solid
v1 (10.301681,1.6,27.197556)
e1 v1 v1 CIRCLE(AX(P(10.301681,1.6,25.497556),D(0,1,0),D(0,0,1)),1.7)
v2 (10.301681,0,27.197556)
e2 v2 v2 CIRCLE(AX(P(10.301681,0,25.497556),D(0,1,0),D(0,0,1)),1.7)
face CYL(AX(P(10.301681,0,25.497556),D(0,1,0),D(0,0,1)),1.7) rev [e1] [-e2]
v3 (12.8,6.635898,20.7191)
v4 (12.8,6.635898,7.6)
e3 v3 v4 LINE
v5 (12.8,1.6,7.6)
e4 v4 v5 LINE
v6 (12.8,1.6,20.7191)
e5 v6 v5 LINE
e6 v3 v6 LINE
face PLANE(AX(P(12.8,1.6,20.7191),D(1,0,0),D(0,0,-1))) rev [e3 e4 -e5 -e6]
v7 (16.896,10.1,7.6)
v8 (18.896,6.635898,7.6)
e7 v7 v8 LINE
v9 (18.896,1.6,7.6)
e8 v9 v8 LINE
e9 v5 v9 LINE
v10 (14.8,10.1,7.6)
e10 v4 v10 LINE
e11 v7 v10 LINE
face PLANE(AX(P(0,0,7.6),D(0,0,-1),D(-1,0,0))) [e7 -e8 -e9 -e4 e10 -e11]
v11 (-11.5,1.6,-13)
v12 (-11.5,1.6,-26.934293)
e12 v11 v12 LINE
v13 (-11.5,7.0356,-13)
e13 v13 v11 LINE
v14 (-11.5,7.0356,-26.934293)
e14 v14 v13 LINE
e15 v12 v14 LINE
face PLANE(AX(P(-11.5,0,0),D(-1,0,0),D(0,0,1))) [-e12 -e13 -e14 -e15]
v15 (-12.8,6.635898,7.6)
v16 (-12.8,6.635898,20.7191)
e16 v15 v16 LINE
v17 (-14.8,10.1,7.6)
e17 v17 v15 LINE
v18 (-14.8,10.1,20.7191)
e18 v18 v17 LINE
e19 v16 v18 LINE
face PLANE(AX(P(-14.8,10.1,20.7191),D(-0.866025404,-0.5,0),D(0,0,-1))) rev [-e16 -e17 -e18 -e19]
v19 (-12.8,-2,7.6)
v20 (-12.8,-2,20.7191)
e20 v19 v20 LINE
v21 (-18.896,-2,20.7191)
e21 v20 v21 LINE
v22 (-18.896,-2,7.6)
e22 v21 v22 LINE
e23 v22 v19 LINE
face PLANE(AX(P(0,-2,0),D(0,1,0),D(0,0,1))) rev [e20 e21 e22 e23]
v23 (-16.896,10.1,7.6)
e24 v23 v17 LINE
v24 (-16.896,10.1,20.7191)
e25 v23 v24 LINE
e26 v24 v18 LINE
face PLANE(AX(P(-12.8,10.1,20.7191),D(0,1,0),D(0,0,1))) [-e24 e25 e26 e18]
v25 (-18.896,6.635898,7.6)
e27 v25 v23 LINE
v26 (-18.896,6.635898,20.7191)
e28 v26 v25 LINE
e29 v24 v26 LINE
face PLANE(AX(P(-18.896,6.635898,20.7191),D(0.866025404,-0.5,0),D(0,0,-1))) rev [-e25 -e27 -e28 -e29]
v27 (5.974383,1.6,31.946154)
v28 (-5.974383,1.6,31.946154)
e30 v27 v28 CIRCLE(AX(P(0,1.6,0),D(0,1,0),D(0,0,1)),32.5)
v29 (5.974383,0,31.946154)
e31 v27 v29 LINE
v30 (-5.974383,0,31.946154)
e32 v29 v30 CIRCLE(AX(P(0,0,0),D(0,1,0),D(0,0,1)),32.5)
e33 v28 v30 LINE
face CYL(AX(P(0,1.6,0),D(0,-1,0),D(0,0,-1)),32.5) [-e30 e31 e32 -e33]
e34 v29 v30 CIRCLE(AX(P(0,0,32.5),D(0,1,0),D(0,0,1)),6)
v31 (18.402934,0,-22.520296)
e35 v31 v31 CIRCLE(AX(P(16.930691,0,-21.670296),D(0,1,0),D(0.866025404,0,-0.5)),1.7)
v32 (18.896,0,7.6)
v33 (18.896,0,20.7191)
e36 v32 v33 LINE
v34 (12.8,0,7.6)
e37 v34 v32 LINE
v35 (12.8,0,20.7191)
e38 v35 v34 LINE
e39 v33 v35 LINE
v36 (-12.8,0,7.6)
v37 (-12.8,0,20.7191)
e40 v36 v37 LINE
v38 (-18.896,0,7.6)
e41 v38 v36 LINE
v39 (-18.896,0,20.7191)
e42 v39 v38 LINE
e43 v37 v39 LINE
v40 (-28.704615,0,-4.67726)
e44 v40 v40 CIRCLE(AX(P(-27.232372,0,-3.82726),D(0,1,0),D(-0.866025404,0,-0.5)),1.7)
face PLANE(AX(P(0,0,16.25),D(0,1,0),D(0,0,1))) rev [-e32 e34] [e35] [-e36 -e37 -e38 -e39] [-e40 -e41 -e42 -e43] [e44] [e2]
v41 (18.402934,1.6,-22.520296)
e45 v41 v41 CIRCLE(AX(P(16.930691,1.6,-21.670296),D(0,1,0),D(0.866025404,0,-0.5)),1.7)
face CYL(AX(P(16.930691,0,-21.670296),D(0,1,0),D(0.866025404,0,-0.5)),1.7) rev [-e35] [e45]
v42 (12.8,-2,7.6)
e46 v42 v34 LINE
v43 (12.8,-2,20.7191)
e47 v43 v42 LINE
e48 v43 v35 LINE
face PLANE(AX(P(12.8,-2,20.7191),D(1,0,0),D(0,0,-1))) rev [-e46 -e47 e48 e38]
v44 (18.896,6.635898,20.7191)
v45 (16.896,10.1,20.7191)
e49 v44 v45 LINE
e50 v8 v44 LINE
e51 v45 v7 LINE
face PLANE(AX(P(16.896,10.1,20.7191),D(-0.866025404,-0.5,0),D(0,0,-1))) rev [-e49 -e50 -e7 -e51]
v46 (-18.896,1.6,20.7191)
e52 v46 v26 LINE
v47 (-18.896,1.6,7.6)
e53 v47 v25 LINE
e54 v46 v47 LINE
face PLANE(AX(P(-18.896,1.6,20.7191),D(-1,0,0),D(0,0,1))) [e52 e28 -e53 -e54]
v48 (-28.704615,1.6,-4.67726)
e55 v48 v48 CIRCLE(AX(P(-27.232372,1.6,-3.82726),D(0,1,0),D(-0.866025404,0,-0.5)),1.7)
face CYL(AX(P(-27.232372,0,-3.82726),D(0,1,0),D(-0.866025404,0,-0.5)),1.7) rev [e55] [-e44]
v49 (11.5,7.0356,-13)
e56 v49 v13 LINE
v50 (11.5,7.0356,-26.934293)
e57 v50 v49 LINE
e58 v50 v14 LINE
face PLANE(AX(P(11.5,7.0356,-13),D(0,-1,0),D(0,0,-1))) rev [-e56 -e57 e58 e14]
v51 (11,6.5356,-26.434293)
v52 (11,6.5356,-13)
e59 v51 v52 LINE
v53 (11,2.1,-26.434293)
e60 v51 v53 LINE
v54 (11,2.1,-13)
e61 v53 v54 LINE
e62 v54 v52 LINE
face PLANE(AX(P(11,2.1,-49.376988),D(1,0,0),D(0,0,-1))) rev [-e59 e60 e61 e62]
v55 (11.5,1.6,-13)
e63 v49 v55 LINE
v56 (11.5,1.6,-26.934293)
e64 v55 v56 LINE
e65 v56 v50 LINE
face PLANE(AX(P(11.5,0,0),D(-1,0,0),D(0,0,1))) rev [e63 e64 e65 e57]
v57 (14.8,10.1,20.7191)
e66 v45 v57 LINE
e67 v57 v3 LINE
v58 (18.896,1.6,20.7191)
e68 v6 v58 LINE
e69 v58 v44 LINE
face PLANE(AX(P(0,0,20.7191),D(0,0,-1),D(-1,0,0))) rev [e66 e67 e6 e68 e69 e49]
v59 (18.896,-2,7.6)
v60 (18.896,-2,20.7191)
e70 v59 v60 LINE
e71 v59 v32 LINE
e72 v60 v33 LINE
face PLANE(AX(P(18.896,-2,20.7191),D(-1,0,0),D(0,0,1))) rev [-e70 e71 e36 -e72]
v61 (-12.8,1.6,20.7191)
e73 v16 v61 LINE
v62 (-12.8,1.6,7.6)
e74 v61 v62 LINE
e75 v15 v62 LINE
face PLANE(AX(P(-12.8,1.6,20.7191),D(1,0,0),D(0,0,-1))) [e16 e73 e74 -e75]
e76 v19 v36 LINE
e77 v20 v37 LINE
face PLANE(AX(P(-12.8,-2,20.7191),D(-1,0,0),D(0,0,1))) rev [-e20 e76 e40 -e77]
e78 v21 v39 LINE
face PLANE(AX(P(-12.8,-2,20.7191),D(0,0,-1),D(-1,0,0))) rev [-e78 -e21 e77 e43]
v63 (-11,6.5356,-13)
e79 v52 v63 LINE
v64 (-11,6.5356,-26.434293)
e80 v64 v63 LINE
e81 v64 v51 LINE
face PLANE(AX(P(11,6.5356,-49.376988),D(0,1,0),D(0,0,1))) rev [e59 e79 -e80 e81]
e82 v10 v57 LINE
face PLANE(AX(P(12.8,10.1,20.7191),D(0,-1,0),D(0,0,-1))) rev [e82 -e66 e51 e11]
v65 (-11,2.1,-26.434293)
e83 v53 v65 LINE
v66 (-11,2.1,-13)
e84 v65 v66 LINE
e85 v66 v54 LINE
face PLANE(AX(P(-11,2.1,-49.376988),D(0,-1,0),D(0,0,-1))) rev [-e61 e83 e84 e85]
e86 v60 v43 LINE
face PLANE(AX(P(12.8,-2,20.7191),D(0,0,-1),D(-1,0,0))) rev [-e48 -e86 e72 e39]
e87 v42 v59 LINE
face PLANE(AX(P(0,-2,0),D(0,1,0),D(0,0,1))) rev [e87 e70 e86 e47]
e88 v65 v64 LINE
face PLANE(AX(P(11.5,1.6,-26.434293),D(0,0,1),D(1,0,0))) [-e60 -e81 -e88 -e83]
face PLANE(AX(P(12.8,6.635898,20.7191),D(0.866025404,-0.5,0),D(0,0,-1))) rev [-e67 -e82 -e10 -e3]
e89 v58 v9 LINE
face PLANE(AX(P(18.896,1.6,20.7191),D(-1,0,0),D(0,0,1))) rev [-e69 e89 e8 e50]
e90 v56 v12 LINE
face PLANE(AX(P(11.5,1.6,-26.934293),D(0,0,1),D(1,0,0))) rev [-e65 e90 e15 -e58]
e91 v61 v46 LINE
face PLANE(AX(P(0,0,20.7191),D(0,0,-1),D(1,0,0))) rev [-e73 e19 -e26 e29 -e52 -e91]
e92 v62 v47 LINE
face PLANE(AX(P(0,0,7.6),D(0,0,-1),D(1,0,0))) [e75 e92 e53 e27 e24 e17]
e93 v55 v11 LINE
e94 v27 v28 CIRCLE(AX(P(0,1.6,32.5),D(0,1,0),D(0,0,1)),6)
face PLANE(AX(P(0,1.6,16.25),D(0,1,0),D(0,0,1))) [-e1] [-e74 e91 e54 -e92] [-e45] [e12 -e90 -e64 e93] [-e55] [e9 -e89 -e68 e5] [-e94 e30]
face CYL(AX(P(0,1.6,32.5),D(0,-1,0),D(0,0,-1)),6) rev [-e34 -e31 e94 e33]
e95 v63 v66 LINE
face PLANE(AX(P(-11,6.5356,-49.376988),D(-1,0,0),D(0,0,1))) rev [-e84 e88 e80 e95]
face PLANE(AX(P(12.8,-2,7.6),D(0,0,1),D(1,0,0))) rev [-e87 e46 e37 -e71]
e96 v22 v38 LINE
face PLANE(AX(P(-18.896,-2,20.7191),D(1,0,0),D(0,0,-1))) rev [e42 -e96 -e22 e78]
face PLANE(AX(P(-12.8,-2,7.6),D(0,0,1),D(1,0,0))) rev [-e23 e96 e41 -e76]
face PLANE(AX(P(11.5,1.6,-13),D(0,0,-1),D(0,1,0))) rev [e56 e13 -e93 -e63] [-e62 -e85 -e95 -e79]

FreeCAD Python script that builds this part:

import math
import FreeCAD as App
import Part
import Sketcher

V = App.Vector
Q = App.Units.Quantity


def edges_at(feature, points):
    """Names of the edges that pass closest to the given points."""
    edges = feature.Shape.Edges
    near = lambda p: min(range(len(edges)), key=lambda i: edges[i].distToShape(Part.Vertex(*p))[0])
    return sorted({f"Edge{near(p) + 1}" for p in points})


def add_polygon(sketch, points):
    """Adds a closed chain of lines whose ends are joined by coincident constraints."""
    first, n = sketch.GeometryCount, len(points)
    for a, b in zip(points, points[1:] + points[:1]):
        sketch.addGeometry(Part.LineSegment(App.Vector(*a, 0), App.Vector(*b, 0)), False)
    for i in range(n):
        sketch.addConstraint(Sketcher.Constraint("Coincident", first + i, 2, first + (i + 1) % n, 1))

doc = App.newDocument("Part")
body = doc.addObject("PartDesign::Body", "Body")

# Sketch on XZ plane
sketch1 = doc.addObject("Sketcher::SketchObject", "Sketch")
body.addObject(sketch1)
sketch1.AttachmentSupport = (doc.XZ_Plane, [""])
sketch1.MapMode = "FlatFace"
sketch1.addGeometry(Part.ArcOfCircle(Part.Circle(V(0, 0, 0), V(0, 0, 1), 32), math.radians(101), math.radians(439)), False)
sketch1.addGeometry(Part.ArcOfCircle(Part.Circle(V(0, 32, 0), V(0, 0, 1), 6), math.radians(-175), math.radians(-5)), False)
sketch1.addConstraint(Sketcher.Constraint("Coincident", 0, 1, 1, 1))
sketch1.addConstraint(Sketcher.Constraint("Coincident", 1, 2, 0, 2))
sketch1.addConstraint(Sketcher.Constraint("Coincident", 0, 3, -1, 1))
sketch1.addConstraint(Sketcher.Constraint("PointOnObject", 1, 3, -2))
sketch1.addConstraint(Sketcher.Constraint("Radius", 1, Q("6 mm")))
sketch1.addConstraint(Sketcher.Constraint("Radius", 0, Q("32.5 mm")))
sketch1.addConstraint(Sketcher.Constraint("DistanceY", -1, 1, 1, 3, Q("32.5 mm")))
pad1 = doc.addObject("PartDesign::Pad", "Pad")
body.addObject(pad1)
pad1.Profile = sketch1
pad1.Length = 1.6
pad1.Reversed = True

# Sketch on XZ plane
sketch2 = doc.addObject("Sketcher::SketchObject", "Sketch001")
body.addObject(sketch2)
sketch2.AttachmentSupport = (doc.XZ_Plane, [""])
sketch2.MapMode = "FlatFace"
sketch2.AttachmentOffset = App.Placement(V(0, 0, -1.6), App.Rotation())
sketch2.addGeometry(Part.Circle(V(10.3, 25.5, 0), V(0, 0, 1), 1.7), False)
sketch2.addConstraint(Sketcher.Constraint("Diameter", 0, Q("3.4 mm")))
sketch2.addConstraint(Sketcher.Constraint("DistanceX", -1, 1, 0, 3, Q("10.301681 mm")))
sketch2.addConstraint(Sketcher.Constraint("DistanceY", -1, 1, 0, 3, Q("25.497556 mm")))
pocket1 = doc.addObject("PartDesign::Pocket", "Pocket")
body.addObject(pocket1)
pocket1.Profile = sketch2
pocket1.Type = "ThroughAll"
pocket1.Reversed = True
doc.recompute()

polarpattern = doc.addObject("PartDesign::PolarPattern", "PolarPattern")
body.addObject(polarpattern)
polarpattern.Originals = [pocket1]
polarpattern.Axis = (doc.Y_Axis, [""])
polarpattern.Angle = 360
polarpattern.Occurrences = 3
body.Tip = polarpattern

# Sketch on YZ plane
sketch3 = doc.addObject("Sketcher::SketchObject", "Sketch002")
body.addObject(sketch3)
sketch3.AttachmentSupport = (doc.YZ_Plane, [""])
sketch3.MapMode = "FlatFace"
add_polygon(sketch3, [(7, -13), (2, -13), (2, -27), (7, -27)])  # lines 0-3
sketch3.addConstraint(Sketcher.Constraint("Horizontal", 0))
sketch3.addConstraint(Sketcher.Constraint("Vertical", 1))
sketch3.addConstraint(Sketcher.Constraint("Horizontal", 2))
sketch3.addConstraint(Sketcher.Constraint("Vertical", 3))
sketch3.addConstraint(Sketcher.Constraint("DistanceY", 0, 2, -1, 1, Q("13 mm")))
sketch3.addConstraint(Sketcher.Constraint("DistanceX", -1, 1, 0, 2, Q("1.6 mm")))
sketch3.addConstraint(Sketcher.Constraint("DistanceX", 0, 2, 0, 1, Q("5.4356 mm")))
sketch3.addConstraint(Sketcher.Constraint("DistanceY", 1, 2, 1, 1, Q("13.934293 mm")))
pad2 = doc.addObject("PartDesign::Pad", "Pad001")
body.addObject(pad2)
pad2.Profile = sketch3
pad2.Length = 23
pad2.Midplane = True

# Sketch on XY plane
sketch4 = doc.addObject("Sketcher::SketchObject", "Sketch003")
body.addObject(sketch4)
sketch4.AttachmentSupport = (doc.XY_Plane, [""])
sketch4.MapMode = "FlatFace"
sketch4.AttachmentOffset = App.Placement(V(0, 0, 7.6), App.Rotation())
add_polygon(sketch4, [(13, 10), (13, 2), (19, 2), (19, 10)])  # lines 0-3
sketch4.addConstraint(Sketcher.Constraint("Vertical", 0))
sketch4.addConstraint(Sketcher.Constraint("Horizontal", 1))
sketch4.addConstraint(Sketcher.Constraint("Vertical", 2))
sketch4.addConstraint(Sketcher.Constraint("Horizontal", 3))
sketch4.addConstraint(Sketcher.Constraint("DistanceY", 0, 2, 0, 1, Q("8.5 mm")))
sketch4.addConstraint(Sketcher.Constraint("DistanceX", -1, 1, 0, 2, Q("12.8 mm")))
sketch4.addConstraint(Sketcher.Constraint("DistanceY", -1, 1, 0, 2, Q("1.6 mm")))
sketch4.addConstraint(Sketcher.Constraint("DistanceX", 1, 1, 1, 2, Q("6.096 mm")))
pad3 = doc.addObject("PartDesign::Pad", "Pad002")
body.addObject(pad3)
pad3.Profile = sketch4
pad3.Length = 13.1191
doc.recompute()

chamfer = doc.addObject("PartDesign::Chamfer", "Chamfer")
body.addObject(chamfer)
chamfer.Base = (pad3, edges_at(pad3, [(12.8, 10.1, 14.16), (18.896, 10.1, 14.16)]))
chamfer.ChamferType = "Two distances"
chamfer.Size = 2
chamfer.Size2 = 3.464102
chamfer.FlipDirection = True
doc.recompute()

mirrored = doc.addObject("PartDesign::Mirrored", "Mirrored")
body.addObject(mirrored)
mirrored.Originals = [pad3]
mirrored.MirrorPlane = (doc.YZ_Plane, [""])
body.Tip = mirrored
doc.recompute()

chamfer2 = doc.addObject("PartDesign::Chamfer", "Chamfer001")
body.addObject(chamfer2)
chamfer2.Base = (mirrored, edges_at(mirrored, [(-12.8, 10.1, 14.16), (-18.896, 10.1, 14.16)]))
chamfer2.ChamferType = "Two distances"
chamfer2.Size = 3.464102
chamfer2.Size2 = 2

# Sketch on XY plane
sketch5 = doc.addObject("Sketcher::SketchObject", "Sketch004")
body.addObject(sketch5)
sketch5.AttachmentSupport = (doc.XY_Plane, [""])
sketch5.MapMode = "FlatFace"
sketch5.AttachmentOffset = App.Placement(V(0, 0, -13), App.Rotation())
add_polygon(sketch5, [(-11, 6.5), (-11, 2.1), (11, 2.1), (11, 6.5)])  # lines 0-3
sketch5.addConstraint(Sketcher.Constraint("Vertical", 0))
sketch5.addConstraint(Sketcher.Constraint("Horizontal", 1))
sketch5.addConstraint(Sketcher.Constraint("Vertical", 2))
sketch5.addConstraint(Sketcher.Constraint("Horizontal", 3))
sketch5.addConstraint(Sketcher.Constraint("DistanceX", 1, 1, 1, 2, Q("22 mm")))
sketch5.addConstraint(Sketcher.Constraint("DistanceX", 0, 2, -1, 1, Q("11 mm")))
sketch5.addConstraint(Sketcher.Constraint("DistanceY", -1, 1, 0, 2, Q("2.1 mm")))
sketch5.addConstraint(Sketcher.Constraint("DistanceY", 0, 2, 0, 1, Q("4.4356 mm")))
pocket2 = doc.addObject("PartDesign::Pocket", "Pocket001")
body.addObject(pocket2)
pocket2.Profile = sketch5
pocket2.Length = 13.434293

# Sketch on XZ plane
sketch6 = doc.addObject("Sketcher::SketchObject", "Sketch005")
body.addObject(sketch6)
sketch6.AttachmentSupport = (doc.XZ_Plane, [""])
sketch6.MapMode = "FlatFace"
add_polygon(sketch6, [(13, 21), (13, 8), (19, 8), (19, 21)])  # lines 0-3
add_polygon(sketch6, [(-19, 21), (-19, 8), (-13, 8), (-13, 21)])  # lines 4-7
sketch6.addConstraint(Sketcher.Constraint("Vertical", 0))
sketch6.addConstraint(Sketcher.Constraint("Horizontal", 1))
sketch6.addConstraint(Sketcher.Constraint("Vertical", 2))
sketch6.addConstraint(Sketcher.Constraint("Horizontal", 3))
sketch6.addConstraint(Sketcher.Constraint("Vertical", 4))
sketch6.addConstraint(Sketcher.Constraint("Horizontal", 5))
sketch6.addConstraint(Sketcher.Constraint("Vertical", 6))
sketch6.addConstraint(Sketcher.Constraint("Horizontal", 7))
sketch6.addConstraint(Sketcher.Constraint("Symmetric", 1, 2, 4, 2, -2))
sketch6.addConstraint(Sketcher.Constraint("Symmetric", 3, 2, 6, 2, -2))
sketch6.addConstraint(Sketcher.Constraint("DistanceX", -1, 1, 0, 2, Q("12.8 mm")))
sketch6.addConstraint(Sketcher.Constraint("DistanceY", -1, 1, 0, 2, Q("7.6 mm")))
sketch6.addConstraint(Sketcher.Constraint("DistanceX", 1, 1, 1, 2, Q("6.096 mm")))
sketch6.addConstraint(Sketcher.Constraint("DistanceY", 0, 2, 0, 1, Q("13.1191 mm")))
pad4 = doc.addObject("PartDesign::Pad", "Pad003")
body.addObject(pad4)
pad4.Profile = sketch6
pad4.Length = 2

doc.recompute()
